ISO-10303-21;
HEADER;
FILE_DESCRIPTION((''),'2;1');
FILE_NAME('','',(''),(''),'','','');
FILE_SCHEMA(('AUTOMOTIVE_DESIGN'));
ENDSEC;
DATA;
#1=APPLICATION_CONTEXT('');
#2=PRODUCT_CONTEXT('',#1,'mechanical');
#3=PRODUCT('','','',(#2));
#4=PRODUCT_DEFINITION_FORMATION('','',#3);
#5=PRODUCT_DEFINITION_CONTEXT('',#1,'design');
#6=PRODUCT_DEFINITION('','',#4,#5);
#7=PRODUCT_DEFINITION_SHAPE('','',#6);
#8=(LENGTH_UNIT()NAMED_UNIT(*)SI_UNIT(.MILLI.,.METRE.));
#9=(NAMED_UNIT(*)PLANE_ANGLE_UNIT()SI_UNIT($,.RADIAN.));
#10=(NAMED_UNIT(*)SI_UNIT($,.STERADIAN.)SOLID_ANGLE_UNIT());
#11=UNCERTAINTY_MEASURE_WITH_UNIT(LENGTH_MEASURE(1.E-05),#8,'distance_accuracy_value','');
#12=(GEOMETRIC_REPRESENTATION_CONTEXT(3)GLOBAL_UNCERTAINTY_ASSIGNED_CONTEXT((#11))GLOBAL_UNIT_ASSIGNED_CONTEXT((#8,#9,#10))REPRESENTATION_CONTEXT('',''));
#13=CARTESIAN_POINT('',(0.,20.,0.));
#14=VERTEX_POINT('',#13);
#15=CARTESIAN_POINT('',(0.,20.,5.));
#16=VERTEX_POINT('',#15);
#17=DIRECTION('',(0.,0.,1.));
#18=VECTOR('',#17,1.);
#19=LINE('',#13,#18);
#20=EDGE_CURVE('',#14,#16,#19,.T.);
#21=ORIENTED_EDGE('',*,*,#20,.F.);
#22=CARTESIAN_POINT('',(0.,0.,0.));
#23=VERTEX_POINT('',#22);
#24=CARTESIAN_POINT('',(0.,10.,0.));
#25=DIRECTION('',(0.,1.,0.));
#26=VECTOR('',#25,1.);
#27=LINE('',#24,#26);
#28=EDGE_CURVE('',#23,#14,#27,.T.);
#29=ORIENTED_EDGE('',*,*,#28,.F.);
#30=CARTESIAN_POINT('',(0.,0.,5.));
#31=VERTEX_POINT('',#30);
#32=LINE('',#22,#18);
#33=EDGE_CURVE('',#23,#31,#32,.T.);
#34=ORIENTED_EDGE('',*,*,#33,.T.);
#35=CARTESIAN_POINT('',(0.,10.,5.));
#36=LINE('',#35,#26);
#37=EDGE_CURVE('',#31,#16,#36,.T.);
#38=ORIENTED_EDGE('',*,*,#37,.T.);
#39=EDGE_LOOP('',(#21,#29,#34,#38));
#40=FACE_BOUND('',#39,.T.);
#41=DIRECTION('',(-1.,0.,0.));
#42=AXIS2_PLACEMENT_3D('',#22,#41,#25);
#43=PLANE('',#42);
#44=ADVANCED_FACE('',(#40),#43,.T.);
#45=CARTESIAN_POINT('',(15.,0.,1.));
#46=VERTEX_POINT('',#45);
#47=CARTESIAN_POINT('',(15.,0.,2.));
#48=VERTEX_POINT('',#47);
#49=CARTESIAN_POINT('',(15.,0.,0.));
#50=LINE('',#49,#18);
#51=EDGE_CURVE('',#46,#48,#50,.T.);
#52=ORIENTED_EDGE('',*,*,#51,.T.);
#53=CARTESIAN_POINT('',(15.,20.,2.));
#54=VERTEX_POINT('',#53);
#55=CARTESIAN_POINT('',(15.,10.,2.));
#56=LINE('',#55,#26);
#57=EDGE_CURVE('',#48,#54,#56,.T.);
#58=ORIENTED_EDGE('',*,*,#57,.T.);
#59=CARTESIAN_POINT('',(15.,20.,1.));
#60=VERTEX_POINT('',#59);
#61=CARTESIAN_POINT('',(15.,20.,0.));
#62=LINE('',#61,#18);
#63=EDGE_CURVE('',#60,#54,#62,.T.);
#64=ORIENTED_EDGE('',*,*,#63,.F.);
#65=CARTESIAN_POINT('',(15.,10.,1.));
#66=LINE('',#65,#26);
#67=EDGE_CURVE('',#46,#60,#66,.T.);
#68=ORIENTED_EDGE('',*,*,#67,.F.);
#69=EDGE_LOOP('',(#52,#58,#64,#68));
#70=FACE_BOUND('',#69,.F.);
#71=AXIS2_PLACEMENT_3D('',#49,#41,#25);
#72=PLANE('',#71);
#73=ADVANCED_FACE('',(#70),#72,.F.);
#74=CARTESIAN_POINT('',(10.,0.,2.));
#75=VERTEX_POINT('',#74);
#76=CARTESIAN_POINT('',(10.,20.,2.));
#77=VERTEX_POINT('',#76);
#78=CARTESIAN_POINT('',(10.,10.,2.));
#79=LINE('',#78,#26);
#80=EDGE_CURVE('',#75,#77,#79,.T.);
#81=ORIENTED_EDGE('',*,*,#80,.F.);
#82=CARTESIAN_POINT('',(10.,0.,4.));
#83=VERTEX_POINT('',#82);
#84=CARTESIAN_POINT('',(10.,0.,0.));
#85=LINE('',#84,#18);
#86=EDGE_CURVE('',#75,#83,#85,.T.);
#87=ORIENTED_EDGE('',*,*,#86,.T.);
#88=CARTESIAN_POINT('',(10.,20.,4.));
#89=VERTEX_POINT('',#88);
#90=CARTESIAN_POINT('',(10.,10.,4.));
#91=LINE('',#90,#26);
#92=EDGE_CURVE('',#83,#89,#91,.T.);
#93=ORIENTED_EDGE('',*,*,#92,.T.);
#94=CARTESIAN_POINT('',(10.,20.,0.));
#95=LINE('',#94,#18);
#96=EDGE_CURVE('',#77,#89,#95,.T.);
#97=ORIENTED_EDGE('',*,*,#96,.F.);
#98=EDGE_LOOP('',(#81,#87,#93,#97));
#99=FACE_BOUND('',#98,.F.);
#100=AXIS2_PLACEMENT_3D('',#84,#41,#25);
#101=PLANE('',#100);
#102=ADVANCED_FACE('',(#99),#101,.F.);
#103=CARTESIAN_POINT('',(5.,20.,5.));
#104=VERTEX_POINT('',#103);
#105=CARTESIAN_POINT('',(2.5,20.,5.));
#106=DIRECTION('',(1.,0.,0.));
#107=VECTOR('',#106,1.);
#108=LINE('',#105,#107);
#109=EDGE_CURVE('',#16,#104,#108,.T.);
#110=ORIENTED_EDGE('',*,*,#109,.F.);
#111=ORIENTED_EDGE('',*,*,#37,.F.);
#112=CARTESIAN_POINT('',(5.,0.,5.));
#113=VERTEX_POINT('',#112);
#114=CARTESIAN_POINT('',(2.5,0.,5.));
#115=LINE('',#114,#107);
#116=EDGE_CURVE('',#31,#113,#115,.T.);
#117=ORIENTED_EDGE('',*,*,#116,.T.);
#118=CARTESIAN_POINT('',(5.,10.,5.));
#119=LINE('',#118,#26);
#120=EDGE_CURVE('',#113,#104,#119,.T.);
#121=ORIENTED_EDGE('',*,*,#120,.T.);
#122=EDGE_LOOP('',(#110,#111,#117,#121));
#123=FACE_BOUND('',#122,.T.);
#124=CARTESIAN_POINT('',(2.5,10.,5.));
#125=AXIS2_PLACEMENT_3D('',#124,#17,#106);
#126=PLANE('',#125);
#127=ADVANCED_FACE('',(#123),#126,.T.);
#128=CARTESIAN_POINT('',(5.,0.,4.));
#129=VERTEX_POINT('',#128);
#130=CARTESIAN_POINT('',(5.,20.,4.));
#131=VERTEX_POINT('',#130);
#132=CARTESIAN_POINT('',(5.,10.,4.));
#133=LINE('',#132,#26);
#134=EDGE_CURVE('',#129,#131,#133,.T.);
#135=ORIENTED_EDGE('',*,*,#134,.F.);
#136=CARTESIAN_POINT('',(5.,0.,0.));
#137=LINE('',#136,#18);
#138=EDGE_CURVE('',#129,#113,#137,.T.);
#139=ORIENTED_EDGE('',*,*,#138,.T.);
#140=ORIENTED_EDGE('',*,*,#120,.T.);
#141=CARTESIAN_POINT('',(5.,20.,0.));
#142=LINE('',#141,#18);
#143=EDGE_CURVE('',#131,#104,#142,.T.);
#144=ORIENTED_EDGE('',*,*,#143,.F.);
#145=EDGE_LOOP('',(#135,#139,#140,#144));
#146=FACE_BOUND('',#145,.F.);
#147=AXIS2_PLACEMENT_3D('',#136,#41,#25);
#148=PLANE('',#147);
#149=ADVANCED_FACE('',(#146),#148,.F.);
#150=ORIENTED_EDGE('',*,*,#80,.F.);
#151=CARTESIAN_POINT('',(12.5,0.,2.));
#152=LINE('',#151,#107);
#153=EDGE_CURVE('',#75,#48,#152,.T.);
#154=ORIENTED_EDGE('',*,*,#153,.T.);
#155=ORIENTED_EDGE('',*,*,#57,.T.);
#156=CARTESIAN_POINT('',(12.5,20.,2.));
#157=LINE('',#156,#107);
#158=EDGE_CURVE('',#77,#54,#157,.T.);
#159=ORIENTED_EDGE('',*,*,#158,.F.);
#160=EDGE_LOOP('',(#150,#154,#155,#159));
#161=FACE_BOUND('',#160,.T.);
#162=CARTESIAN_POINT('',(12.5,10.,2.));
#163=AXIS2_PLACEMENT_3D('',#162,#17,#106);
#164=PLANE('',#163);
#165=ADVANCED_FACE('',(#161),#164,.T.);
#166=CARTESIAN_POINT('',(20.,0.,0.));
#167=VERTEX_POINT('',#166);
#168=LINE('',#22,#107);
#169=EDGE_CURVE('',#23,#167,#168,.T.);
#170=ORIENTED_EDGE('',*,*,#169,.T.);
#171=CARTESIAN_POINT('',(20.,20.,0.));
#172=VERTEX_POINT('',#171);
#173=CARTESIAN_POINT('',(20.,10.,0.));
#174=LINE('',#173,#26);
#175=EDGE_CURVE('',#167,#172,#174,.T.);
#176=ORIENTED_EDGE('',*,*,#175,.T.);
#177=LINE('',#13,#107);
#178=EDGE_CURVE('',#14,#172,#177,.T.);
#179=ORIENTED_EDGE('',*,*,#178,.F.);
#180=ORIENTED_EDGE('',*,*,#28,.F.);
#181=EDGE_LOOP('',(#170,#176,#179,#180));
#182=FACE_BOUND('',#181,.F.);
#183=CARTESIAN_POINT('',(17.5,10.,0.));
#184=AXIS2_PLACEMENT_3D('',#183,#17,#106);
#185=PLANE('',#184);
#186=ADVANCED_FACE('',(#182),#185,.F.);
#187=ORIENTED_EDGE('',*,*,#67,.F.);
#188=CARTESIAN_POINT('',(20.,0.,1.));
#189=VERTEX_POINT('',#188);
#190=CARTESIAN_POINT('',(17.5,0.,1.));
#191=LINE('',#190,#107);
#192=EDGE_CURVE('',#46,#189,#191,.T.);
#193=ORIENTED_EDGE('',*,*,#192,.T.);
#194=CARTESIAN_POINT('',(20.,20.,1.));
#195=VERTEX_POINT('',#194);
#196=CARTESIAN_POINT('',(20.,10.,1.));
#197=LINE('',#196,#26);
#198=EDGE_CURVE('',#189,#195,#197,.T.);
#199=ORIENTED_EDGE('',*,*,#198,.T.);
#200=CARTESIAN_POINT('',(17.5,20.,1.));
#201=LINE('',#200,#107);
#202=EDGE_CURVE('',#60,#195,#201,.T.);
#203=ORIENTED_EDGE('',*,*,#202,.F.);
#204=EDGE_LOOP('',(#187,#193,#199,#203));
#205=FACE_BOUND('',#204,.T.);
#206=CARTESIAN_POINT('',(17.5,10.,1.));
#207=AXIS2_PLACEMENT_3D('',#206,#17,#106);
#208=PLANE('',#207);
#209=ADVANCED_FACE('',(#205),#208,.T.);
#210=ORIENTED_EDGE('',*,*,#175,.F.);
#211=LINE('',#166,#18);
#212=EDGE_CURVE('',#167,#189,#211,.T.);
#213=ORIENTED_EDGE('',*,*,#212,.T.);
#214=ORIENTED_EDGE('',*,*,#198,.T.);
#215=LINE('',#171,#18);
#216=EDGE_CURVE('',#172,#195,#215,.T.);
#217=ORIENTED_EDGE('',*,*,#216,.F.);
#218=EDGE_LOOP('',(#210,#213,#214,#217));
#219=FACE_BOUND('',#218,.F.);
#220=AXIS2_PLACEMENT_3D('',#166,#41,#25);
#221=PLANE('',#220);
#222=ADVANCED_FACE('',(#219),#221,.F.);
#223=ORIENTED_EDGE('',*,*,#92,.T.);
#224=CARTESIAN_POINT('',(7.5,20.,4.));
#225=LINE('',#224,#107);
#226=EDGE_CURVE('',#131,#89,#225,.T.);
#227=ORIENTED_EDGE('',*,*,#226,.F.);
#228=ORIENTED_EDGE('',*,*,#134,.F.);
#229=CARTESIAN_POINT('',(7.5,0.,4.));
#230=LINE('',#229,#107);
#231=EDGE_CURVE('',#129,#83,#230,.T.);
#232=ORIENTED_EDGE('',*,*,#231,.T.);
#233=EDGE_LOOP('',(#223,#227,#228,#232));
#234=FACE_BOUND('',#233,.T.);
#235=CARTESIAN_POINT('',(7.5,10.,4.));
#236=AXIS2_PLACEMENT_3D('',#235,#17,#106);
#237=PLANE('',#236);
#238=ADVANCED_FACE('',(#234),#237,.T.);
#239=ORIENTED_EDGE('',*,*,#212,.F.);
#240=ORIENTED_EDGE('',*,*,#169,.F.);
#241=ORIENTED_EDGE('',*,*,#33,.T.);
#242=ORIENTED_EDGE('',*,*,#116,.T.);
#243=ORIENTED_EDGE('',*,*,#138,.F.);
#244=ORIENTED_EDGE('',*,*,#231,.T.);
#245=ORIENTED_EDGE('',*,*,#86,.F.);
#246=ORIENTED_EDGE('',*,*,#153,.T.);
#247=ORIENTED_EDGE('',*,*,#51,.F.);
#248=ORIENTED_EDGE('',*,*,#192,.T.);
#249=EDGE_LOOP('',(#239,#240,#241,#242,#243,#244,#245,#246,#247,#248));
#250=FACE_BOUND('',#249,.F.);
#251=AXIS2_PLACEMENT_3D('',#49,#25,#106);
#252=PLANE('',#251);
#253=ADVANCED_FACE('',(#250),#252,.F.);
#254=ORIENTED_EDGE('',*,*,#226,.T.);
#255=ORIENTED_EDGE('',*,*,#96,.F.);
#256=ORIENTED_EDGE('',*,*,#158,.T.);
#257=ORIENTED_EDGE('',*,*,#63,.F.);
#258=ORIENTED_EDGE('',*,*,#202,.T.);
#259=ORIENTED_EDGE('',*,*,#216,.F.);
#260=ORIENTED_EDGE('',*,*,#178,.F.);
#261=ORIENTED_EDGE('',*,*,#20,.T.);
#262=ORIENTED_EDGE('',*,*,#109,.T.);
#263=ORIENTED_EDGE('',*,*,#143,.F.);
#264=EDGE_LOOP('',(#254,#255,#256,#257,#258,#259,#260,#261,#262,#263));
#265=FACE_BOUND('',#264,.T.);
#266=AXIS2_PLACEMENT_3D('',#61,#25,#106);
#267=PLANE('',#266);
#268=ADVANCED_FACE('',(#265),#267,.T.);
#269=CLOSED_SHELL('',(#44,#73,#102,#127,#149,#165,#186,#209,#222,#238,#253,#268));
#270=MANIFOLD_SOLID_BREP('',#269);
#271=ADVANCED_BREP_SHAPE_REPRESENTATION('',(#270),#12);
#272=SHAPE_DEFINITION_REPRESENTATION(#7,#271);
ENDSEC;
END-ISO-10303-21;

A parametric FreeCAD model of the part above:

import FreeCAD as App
import Part
import Sketcher

doc = App.newDocument("Part")
params = doc.addObject("Spreadsheet::Sheet", "Params")
for row, (alias, value) in enumerate([
    ("sketch1_width", "5 mm"),
    ("sketch1_height", "20 mm"),
    ("pad1_length", "5 mm"),
    ("sketch2_width", "5 mm"),
    ("sketch2_height", "20 mm"),
    ("pad2_length", "4 mm"),
    ("sketch3_width", "5 mm"),
    ("sketch3_height", "20 mm"),
    ("pad3_length", "2 mm"),
    ("sketch4_width", "5 mm"),
    ("sketch4_height", "20 mm"),
    ("pad4_length", "1 mm"),
], start=1):
    params.set(f"A{row}", alias)
    params.set(f"B{row}", "=" + value)
    params.setAlias(f"B{row}", alias)

body = doc.addObject("PartDesign::Body", "Body")

sketch1 = body.newObject("Sketcher::SketchObject", "Sketch")
sketch1.AttachmentSupport = (doc.getObject("XY_Plane"), [""])
sketch1.MapMode = "FlatFace"
sketch1.addGeometry([
    Part.LineSegment(App.Vector(0, 20, 0), App.Vector(0, 0, 0)),
    Part.LineSegment(App.Vector(0, 0, 0), App.Vector(5, 0, 0)),
    Part.LineSegment(App.Vector(5, 0, 0), App.Vector(5, 20, 0)),
    Part.LineSegment(App.Vector(5, 20, 0), App.Vector(0, 20, 0)),
], False)
sketch1.addConstraint([
    Sketcher.Constraint("Coincident", 0, 2, 1, 1),
    Sketcher.Constraint("Coincident", 1, 2, 2, 1),
    Sketcher.Constraint("Coincident", 2, 2, 3, 1),
    Sketcher.Constraint("Coincident", 3, 2, 0, 1),
    Sketcher.Constraint("Vertical", 0),
    Sketcher.Constraint("Horizontal", 1),
    Sketcher.Constraint("Vertical", 2),
    Sketcher.Constraint("Horizontal", 3),
    Sketcher.Constraint("Coincident", 0, 2, -1, 1),
    Sketcher.Constraint("DistanceX", 1, 1, 1, 2, 5.0),
    Sketcher.Constraint("DistanceY", 0, 2, 0, 1, 20.0),
])
sketch1.setExpression("Constraints[9]", "Params.sketch1_width")
sketch1.setExpression("Constraints[10]", "Params.sketch1_height")
pad1 = body.newObject("PartDesign::Pad", "Pad")
pad1.Profile = sketch1
pad1.setExpression("Length", "Params.pad1_length")

sketch2 = body.newObject("Sketcher::SketchObject", "Sketch001")
sketch2.AttachmentSupport = (doc.getObject("XY_Plane"), [""])
sketch2.MapMode = "FlatFace"
sketch2.addGeometry([
    Part.LineSegment(App.Vector(5, 20, 0), App.Vector(5, 0, 0)),
    Part.LineSegment(App.Vector(5, 0, 0), App.Vector(10, 0, 0)),
    Part.LineSegment(App.Vector(10, 0, 0), App.Vector(10, 20, 0)),
    Part.LineSegment(App.Vector(10, 20, 0), App.Vector(5, 20, 0)),
], False)
sketch2.addConstraint([
    Sketcher.Constraint("Coincident", 0, 2, 1, 1),
    Sketcher.Constraint("Coincident", 1, 2, 2, 1),
    Sketcher.Constraint("Coincident", 2, 2, 3, 1),
    Sketcher.Constraint("Coincident", 3, 2, 0, 1),
    Sketcher.Constraint("Vertical", 0),
    Sketcher.Constraint("Horizontal", 1),
    Sketcher.Constraint("Vertical", 2),
    Sketcher.Constraint("Horizontal", 3),
    Sketcher.Constraint("PointOnObject", 0, 2, -1),
    Sketcher.Constraint("DistanceX", 1, 1, 1, 2, 5.0),
    Sketcher.Constraint("DistanceY", 0, 2, 0, 1, 20.0),
    Sketcher.Constraint("DistanceX", -1, 1, 0, 2, 5.0),
])
sketch2.setExpression("Constraints[9]", "Params.sketch2_width")
sketch2.setExpression("Constraints[10]", "Params.sketch2_height")
pad2 = body.newObject("PartDesign::Pad", "Pad001")
pad2.Profile = sketch2
pad2.setExpression("Length", "Params.pad2_length")

sketch3 = body.newObject("Sketcher::SketchObject", "Sketch002")
sketch3.AttachmentSupport = (doc.getObject("XY_Plane"), [""])
sketch3.MapMode = "FlatFace"
sketch3.addGeometry([
    Part.LineSegment(App.Vector(10, 20, 0), App.Vector(10, 0, 0)),
    Part.LineSegment(App.Vector(10, 0, 0), App.Vector(15, 0, 0)),
    Part.LineSegment(App.Vector(15, 0, 0), App.Vector(15, 20, 0)),
    Part.LineSegment(App.Vector(15, 20, 0), App.Vector(10, 20, 0)),
], False)
sketch3.addConstraint([
    Sketcher.Constraint("Coincident", 0, 2, 1, 1),
    Sketcher.Constraint("Coincident", 1, 2, 2, 1),
    Sketcher.Constraint("Coincident", 2, 2, 3, 1),
    Sketcher.Constraint("Coincident", 3, 2, 0, 1),
    Sketcher.Constraint("Vertical", 0),
    Sketcher.Constraint("Horizontal", 1),
    Sketcher.Constraint("Vertical", 2),
    Sketcher.Constraint("Horizontal", 3),
    Sketcher.Constraint("PointOnObject", 0, 2, -1),
    Sketcher.Constraint("DistanceX", 1, 1, 1, 2, 5.0),
    Sketcher.Constraint("DistanceY", 0, 2, 0, 1, 20.0),
    Sketcher.Constraint("DistanceX", -1, 1, 0, 2, 10.0),
])
sketch3.setExpression("Constraints[9]", "Params.sketch3_width")
sketch3.setExpression("Constraints[10]", "Params.sketch3_height")
pad3 = body.newObject("PartDesign::Pad", "Pad002")
pad3.Profile = sketch3
pad3.setExpression("Length", "Params.pad3_length")

sketch4 = body.newObject("Sketcher::SketchObject", "Sketch003")
sketch4.AttachmentSupport = (doc.getObject("XY_Plane"), [""])
sketch4.MapMode = "FlatFace"
sketch4.addGeometry([
    Part.LineSegment(App.Vector(15, 20, 0), App.Vector(15, 0, 0)),
    Part.LineSegment(App.Vector(15, 0, 0), App.Vector(20, 0, 0)),
    Part.LineSegment(App.Vector(20, 0, 0), App.Vector(20, 20, 0)),
    Part.LineSegment(App.Vector(20, 20, 0), App.Vector(15, 20, 0)),
], False)
sketch4.addConstraint([
    Sketcher.Constraint("Coincident", 0, 2, 1, 1),
    Sketcher.Constraint("Coincident", 1, 2, 2, 1),
    Sketcher.Constraint("Coincident", 2, 2, 3, 1),
    Sketcher.Constraint("Coincident", 3, 2, 0, 1),
    Sketcher.Constraint("Vertical", 0),
    Sketcher.Constraint("Horizontal", 1),
    Sketcher.Constraint("Vertical", 2),
    Sketcher.Constraint("Horizontal", 3),
    Sketcher.Constraint("PointOnObject", 0, 2, -1),
    Sketcher.Constraint("DistanceX", 1, 1, 1, 2, 5.0),
    Sketcher.Constraint("DistanceY", 0, 2, 0, 1, 20.0),
    Sketcher.Constraint("DistanceX", -1, 1, 0, 2, 15.0),
])
sketch4.setExpression("Constraints[9]", "Params.sketch4_width")
sketch4.setExpression("Constraints[10]", "Params.sketch4_height")
pad4 = body.newObject("PartDesign::Pad", "Pad003")
pad4.Profile = sketch4
pad4.setExpression("Length", "Params.pad4_length")

doc.recompute()
